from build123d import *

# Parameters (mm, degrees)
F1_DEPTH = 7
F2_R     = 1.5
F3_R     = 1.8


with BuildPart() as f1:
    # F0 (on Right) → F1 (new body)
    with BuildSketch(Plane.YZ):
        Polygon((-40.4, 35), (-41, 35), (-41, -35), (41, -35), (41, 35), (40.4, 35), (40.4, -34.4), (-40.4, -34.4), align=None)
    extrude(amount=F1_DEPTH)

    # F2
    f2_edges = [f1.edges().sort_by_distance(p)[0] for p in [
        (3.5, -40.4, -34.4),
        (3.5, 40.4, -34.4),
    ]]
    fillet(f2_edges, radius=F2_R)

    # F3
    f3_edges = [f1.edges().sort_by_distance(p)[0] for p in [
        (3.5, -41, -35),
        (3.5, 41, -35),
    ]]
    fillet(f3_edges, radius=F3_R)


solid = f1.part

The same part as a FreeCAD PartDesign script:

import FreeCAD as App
import Part
import Sketcher

V = App.Vector


def edges_at(feature, points):
    """Names of the edges that pass closest to the given points."""
    edges = feature.Shape.Edges
    near = lambda p: min(range(len(edges)), key=lambda i: edges[i].distToShape(Part.Vertex(*p))[0])
    return sorted({f"Edge{near(p) + 1}" for p in points})


def add_polygon(sketch, points):
    """Adds a closed chain of lines whose ends are joined by coincident constraints."""
    first, n = sketch.GeometryCount, len(points)
    for a, b in zip(points, points[1:] + points[:1]):
        sketch.addGeometry(Part.LineSegment(App.Vector(*a, 0), App.Vector(*b, 0)), False)
    for i in range(n):
        sketch.addConstraint(Sketcher.Constraint("Coincident", first + i, 2, first + (i + 1) % n, 1))

doc = App.newDocument("Part")
body = doc.addObject("PartDesign::Body", "Body")

# Sketch on YZ plane
sketch1 = doc.addObject("Sketcher::SketchObject", "Sketch")
body.addObject(sketch1)
sketch1.AttachmentSupport = (doc.YZ_Plane, [""])
sketch1.MapMode = "FlatFace"
add_polygon(sketch1, [(-40.4, 35), (-41, 35), (-41, -35), (41, -35), (41, 35), (40.4, 35), (40.4, -34.4), (-40.4, -34.4)])  # lines 0-7
sketch1.addConstraint([
    Sketcher.Constraint("Horizontal", 0),
    Sketcher.Constraint("Vertical", 1),
    Sketcher.Constraint("Horizontal", 2),
    Sketcher.Constraint("Vertical", 3),
    Sketcher.Constraint("Horizontal", 4),
    Sketcher.Constraint("Vertical", 5),
    Sketcher.Constraint("Horizontal", 6),
    Sketcher.Constraint("Vertical", 7),
    Sketcher.Constraint("Symmetric", 0, 2, 2, 2, -1, 1),
    Sketcher.Constraint("Symmetric", 4, 2, 7, 2, -2),
    Sketcher.Constraint("DistanceX", 2, 1, 2, 2, 82.0),
    Sketcher.Constraint("DistanceY", 1, 2, 1, 1, 70.0),
    Sketcher.Constraint("DistanceX", 0, 2, 0, 1, 0.6),
    Sketcher.Constraint("DistanceY", 5, 2, 5, 1, 69.4),
])
pad1 = doc.addObject("PartDesign::Pad", "Pad")
body.addObject(pad1)
pad1.Profile = sketch1
pad1.Length = 7
doc.recompute()

fillet = doc.addObject("PartDesign::Fillet", "Fillet")
body.addObject(fillet)
fillet.Base = (pad1, edges_at(pad1, [(3.5, -40.4, -34.4), (3.5, 40.4, -34.4)]))
fillet.Radius = 1.5
doc.recompute()

fillet2 = doc.addObject("PartDesign::Fillet", "Fillet001")
body.addObject(fillet2)
fillet2.Base = (fillet, edges_at(fillet, [(3.5, -41, -35), (3.5, 41, -35)]))
fillet2.Radius = 1.8

doc.recompute()
